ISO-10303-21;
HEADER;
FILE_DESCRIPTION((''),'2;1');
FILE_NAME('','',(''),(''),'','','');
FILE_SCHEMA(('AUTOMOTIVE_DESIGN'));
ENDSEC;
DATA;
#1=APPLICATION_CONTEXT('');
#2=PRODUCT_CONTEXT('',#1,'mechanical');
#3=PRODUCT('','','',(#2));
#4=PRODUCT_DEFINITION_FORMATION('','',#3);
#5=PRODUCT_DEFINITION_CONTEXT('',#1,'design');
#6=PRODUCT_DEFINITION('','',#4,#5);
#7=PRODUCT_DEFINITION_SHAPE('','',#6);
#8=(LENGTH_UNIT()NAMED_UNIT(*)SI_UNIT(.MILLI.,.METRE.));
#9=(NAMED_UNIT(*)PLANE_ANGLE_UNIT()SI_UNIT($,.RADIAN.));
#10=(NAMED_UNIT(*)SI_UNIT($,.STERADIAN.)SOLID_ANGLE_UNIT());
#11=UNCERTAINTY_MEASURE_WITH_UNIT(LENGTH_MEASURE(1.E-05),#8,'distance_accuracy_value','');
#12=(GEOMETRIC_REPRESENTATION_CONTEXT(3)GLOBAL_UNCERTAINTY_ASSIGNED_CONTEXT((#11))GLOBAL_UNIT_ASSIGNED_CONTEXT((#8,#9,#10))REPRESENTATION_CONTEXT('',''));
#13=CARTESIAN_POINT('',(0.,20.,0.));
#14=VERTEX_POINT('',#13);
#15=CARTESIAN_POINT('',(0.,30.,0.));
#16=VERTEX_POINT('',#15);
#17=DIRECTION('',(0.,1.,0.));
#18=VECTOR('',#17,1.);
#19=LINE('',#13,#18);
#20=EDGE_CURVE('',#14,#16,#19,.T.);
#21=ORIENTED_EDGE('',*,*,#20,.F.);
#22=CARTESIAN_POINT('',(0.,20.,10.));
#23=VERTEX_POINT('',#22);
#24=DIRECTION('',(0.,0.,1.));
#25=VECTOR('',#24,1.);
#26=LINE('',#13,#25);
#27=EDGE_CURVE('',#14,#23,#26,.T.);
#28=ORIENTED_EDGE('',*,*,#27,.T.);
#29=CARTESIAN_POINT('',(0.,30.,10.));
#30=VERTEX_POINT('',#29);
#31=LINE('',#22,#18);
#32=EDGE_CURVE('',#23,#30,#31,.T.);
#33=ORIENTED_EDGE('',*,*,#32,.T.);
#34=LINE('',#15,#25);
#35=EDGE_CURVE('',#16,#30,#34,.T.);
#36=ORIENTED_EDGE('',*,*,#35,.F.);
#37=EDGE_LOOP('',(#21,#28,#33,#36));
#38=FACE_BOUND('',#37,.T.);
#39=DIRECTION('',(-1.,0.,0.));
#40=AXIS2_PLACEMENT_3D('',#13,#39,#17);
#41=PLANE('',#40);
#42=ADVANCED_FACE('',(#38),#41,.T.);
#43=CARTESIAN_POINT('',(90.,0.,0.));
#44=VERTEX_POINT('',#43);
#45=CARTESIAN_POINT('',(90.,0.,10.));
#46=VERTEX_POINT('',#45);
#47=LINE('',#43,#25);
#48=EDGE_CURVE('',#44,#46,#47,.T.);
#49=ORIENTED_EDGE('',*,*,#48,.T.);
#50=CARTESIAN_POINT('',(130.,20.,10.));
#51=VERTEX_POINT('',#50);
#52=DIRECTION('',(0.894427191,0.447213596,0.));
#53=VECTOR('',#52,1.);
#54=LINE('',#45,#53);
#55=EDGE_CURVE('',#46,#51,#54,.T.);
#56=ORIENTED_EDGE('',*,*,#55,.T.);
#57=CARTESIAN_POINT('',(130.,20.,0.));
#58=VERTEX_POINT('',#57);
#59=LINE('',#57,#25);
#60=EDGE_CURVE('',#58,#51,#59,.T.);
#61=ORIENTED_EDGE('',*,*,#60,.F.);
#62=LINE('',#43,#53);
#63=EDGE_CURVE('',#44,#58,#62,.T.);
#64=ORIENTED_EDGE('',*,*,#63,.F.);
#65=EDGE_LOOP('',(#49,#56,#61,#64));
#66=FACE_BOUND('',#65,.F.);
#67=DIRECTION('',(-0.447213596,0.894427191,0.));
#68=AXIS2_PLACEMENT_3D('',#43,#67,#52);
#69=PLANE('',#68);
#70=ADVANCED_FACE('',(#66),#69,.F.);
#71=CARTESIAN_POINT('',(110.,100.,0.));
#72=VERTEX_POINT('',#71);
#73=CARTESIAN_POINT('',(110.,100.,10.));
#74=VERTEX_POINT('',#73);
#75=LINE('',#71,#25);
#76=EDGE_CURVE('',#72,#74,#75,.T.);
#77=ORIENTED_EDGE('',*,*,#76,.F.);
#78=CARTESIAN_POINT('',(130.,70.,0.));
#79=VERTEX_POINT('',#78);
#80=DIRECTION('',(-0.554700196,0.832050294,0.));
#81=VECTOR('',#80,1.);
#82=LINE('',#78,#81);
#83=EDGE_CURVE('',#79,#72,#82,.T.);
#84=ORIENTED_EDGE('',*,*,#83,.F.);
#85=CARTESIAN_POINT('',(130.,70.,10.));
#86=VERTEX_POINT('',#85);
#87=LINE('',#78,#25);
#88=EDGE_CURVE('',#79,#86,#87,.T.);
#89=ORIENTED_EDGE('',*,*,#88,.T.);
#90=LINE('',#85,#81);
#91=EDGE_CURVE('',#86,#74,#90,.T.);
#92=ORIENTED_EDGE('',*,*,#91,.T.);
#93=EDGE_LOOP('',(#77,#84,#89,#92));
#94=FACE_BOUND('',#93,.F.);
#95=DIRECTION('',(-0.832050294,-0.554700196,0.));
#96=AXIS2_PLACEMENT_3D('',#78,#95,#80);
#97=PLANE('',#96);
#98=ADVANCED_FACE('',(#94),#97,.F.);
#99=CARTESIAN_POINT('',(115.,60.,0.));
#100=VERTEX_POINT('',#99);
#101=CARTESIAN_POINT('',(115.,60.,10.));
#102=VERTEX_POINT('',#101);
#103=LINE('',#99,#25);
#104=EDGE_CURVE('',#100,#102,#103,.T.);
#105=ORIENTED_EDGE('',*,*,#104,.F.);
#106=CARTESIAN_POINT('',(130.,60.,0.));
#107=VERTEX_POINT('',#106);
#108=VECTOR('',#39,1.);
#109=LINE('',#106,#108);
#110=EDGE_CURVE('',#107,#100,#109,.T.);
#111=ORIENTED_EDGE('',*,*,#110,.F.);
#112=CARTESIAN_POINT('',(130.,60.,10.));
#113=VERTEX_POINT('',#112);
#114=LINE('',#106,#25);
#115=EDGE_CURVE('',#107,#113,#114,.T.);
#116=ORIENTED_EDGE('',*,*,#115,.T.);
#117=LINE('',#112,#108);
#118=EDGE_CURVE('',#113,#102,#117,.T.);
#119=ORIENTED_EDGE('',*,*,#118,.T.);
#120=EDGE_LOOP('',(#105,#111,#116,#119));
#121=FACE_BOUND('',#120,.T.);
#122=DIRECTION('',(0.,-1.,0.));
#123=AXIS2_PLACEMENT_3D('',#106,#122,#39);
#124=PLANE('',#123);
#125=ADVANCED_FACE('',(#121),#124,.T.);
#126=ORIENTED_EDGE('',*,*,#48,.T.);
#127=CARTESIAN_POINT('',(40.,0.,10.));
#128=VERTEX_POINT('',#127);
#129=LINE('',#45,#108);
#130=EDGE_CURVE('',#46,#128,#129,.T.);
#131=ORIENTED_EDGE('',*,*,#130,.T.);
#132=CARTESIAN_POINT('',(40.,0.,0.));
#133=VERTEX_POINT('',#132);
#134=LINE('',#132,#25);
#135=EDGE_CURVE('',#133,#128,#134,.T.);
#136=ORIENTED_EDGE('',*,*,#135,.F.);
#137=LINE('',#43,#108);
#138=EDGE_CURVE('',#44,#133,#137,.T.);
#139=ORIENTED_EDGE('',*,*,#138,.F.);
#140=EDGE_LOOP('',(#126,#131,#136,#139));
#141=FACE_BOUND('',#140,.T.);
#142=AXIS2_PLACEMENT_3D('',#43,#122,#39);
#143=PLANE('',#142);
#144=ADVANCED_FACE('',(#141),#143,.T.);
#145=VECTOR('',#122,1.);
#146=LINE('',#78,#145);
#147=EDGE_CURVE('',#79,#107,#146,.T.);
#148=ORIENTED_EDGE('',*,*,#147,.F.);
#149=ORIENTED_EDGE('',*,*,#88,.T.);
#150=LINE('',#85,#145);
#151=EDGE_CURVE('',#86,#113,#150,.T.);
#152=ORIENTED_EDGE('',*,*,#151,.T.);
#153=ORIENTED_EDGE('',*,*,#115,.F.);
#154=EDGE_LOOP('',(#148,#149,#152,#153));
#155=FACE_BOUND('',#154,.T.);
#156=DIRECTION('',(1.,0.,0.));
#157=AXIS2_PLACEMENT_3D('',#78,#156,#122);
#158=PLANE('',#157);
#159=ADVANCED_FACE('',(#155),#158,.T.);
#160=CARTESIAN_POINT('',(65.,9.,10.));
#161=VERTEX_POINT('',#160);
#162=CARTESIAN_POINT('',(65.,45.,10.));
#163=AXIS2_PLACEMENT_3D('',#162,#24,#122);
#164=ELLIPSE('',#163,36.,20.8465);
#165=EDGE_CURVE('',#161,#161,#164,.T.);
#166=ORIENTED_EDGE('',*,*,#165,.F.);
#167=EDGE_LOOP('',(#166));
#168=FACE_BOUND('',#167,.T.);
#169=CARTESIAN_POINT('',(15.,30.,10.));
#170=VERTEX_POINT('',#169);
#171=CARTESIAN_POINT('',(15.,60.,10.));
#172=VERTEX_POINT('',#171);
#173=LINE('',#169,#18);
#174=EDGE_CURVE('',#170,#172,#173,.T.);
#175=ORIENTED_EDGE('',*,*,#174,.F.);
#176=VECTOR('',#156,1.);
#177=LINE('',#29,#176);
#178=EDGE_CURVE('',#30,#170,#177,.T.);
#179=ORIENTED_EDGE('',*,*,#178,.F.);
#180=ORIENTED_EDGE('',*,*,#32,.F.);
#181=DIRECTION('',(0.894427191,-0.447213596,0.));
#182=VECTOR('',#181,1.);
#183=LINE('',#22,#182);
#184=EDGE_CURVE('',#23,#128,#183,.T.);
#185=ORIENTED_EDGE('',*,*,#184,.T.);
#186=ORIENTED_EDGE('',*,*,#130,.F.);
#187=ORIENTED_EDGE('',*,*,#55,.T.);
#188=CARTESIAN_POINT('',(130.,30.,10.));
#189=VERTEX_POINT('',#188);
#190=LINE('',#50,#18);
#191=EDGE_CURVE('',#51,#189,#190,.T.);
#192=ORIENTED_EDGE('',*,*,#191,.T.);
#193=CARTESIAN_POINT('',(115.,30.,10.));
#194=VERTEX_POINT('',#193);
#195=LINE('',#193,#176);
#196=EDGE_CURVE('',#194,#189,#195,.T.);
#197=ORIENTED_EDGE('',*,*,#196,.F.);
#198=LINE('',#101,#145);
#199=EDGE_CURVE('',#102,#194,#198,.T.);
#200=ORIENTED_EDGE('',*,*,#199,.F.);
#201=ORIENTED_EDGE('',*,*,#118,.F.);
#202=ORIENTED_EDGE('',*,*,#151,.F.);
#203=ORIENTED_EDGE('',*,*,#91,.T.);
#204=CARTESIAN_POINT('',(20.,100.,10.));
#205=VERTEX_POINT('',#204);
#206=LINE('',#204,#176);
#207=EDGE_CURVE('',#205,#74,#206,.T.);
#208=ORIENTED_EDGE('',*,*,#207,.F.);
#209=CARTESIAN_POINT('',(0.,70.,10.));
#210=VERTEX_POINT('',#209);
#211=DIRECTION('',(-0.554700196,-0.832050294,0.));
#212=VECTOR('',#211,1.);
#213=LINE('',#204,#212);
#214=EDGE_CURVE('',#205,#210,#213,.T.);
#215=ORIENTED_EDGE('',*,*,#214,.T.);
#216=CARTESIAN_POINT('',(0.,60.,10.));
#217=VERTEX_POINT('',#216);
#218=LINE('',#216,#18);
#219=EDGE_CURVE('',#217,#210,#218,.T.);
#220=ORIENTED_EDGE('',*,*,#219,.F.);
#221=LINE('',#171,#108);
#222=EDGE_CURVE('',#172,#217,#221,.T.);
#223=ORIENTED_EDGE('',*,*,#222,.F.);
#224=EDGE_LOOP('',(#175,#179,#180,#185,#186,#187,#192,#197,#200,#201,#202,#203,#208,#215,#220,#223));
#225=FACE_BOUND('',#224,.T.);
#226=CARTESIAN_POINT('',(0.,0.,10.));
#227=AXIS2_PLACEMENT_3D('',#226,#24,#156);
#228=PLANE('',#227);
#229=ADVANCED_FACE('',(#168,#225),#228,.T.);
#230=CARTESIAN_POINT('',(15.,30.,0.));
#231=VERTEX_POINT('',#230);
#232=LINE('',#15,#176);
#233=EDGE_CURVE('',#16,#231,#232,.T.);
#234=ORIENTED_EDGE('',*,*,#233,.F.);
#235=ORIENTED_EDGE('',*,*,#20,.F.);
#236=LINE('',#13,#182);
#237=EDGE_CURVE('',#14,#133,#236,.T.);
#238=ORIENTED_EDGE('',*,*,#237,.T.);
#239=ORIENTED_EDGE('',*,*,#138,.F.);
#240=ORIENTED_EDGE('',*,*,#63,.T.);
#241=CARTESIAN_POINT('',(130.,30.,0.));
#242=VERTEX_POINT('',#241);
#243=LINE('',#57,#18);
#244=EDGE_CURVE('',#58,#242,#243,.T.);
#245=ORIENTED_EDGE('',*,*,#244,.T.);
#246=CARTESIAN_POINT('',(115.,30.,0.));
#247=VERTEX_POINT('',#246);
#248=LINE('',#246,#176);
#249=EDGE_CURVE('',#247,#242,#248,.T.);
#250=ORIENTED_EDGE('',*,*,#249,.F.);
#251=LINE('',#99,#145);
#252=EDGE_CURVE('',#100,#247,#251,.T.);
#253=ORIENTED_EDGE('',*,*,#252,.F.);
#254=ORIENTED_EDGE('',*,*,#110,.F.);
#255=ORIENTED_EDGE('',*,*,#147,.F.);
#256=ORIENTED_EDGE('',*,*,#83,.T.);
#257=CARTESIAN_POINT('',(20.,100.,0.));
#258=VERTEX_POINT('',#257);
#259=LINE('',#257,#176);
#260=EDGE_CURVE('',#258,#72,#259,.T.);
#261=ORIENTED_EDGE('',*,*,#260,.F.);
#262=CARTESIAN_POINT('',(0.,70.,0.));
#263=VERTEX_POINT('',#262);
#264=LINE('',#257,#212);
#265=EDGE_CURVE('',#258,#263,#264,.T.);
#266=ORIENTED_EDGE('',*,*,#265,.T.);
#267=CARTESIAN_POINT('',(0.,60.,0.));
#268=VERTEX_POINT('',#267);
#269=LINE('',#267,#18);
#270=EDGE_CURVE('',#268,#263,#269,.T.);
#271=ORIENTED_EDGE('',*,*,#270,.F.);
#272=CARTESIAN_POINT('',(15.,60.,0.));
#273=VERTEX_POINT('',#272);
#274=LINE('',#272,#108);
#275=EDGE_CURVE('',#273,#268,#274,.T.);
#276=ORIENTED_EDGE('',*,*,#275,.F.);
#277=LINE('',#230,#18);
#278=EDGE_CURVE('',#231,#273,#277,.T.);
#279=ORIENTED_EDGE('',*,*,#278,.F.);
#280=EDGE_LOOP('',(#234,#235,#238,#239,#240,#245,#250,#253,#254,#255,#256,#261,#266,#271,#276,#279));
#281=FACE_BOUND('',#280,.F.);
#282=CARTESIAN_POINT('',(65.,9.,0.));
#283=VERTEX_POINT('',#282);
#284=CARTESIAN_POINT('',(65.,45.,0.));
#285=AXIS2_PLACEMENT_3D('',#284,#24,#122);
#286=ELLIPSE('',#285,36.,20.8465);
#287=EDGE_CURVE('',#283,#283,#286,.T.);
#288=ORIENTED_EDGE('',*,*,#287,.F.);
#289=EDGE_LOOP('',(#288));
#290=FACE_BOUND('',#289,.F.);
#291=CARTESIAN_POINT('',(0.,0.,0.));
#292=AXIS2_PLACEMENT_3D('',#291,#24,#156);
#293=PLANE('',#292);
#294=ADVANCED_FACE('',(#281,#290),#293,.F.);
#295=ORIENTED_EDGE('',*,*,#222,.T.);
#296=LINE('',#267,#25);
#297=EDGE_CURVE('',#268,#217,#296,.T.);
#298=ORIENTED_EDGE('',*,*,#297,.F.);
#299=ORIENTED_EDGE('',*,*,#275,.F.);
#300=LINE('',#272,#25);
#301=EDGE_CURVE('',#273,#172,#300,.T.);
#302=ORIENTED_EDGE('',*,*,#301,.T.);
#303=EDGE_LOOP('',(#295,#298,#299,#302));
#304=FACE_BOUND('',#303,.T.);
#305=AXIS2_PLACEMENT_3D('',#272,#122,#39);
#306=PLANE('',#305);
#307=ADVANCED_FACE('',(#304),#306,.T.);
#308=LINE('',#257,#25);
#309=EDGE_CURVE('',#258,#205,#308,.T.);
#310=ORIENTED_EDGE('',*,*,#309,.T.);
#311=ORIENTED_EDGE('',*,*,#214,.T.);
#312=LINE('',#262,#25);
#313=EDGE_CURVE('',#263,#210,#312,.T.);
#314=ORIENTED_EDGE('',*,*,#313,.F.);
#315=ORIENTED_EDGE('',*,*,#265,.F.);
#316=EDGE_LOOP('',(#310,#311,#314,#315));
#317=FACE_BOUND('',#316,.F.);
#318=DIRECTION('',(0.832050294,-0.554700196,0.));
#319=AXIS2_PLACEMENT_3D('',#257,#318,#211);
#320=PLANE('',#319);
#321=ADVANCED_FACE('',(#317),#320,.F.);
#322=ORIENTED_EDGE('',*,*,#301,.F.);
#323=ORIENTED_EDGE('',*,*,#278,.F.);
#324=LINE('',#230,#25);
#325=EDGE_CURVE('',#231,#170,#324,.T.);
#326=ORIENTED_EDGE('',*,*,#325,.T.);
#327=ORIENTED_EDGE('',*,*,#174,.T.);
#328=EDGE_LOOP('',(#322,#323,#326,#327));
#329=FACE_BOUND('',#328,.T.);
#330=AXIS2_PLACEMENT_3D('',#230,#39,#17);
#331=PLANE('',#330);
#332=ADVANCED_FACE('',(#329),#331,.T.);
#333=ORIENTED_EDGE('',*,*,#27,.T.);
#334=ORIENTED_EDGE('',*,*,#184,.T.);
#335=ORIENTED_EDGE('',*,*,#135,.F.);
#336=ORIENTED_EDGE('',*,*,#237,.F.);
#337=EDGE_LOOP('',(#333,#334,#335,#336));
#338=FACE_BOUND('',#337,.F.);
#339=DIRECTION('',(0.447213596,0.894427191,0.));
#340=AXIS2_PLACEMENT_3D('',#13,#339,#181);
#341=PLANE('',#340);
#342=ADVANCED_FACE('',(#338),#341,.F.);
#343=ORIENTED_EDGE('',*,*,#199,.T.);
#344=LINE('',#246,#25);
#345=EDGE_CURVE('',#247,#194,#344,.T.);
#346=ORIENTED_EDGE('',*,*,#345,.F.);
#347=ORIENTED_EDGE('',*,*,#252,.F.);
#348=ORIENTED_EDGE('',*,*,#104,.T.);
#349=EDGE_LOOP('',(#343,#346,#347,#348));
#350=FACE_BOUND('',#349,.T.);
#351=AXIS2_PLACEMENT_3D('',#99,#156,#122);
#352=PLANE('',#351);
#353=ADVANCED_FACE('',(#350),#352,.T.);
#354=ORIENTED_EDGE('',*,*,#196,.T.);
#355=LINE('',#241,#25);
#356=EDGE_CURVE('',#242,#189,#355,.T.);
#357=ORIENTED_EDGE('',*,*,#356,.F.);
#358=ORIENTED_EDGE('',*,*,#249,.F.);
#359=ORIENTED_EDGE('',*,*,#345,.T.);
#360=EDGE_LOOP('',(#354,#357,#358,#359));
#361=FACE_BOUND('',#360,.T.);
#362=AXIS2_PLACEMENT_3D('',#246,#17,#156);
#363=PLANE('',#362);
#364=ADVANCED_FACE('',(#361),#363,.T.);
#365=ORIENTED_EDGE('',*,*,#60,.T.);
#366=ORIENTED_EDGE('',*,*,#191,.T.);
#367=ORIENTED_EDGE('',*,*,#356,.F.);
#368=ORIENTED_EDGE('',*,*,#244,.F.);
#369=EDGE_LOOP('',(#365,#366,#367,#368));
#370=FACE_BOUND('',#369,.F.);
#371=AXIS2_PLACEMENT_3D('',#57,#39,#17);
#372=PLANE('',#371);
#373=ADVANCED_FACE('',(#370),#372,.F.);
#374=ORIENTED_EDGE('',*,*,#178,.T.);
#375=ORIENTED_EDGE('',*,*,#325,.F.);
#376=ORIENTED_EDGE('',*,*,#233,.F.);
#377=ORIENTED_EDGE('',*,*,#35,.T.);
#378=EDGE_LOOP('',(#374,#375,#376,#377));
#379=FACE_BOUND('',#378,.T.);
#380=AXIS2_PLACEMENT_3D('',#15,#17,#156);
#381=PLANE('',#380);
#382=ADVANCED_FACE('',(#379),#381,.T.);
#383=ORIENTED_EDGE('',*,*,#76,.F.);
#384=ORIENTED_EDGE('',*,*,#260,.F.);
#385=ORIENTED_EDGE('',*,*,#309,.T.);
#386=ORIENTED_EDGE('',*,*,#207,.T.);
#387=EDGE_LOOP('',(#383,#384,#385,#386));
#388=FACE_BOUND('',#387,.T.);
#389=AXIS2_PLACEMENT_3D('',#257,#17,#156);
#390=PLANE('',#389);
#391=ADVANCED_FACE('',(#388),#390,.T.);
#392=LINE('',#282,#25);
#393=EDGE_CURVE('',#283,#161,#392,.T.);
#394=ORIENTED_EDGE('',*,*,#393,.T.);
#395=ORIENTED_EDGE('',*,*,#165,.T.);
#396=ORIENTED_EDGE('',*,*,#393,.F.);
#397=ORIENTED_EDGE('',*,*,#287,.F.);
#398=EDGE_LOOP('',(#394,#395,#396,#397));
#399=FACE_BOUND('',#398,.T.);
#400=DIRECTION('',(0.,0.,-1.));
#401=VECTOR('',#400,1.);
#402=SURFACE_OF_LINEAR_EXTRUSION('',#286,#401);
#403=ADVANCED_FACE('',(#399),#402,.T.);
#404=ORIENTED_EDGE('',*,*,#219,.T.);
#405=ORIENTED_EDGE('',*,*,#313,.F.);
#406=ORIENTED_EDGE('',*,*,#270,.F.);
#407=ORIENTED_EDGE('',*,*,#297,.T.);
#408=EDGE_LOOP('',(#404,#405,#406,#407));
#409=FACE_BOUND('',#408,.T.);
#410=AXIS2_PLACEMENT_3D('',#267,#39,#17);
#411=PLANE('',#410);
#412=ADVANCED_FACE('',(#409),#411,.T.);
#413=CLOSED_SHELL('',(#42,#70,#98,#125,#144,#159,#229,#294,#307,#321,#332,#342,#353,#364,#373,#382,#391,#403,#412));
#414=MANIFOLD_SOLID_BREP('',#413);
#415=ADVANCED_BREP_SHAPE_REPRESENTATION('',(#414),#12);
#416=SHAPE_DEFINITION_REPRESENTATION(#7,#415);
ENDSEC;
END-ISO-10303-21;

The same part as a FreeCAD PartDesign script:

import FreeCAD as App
import Part
import Sketcher

V = App.Vector

doc = App.newDocument("Part")
body = doc.addObject("PartDesign::Body", "Body")

# Sketch on XY plane
sketch1 = body.newObject("Sketcher::SketchObject", "Sketch")
sketch1.AttachmentSupport = (doc.getObject("XY_Plane"), [""])
sketch1.MapMode = "FlatFace"
sketch1.addGeometry(Part.LineSegment(V(0, 30, 0), V(0, 20, 0)), False)
sketch1.addGeometry(Part.LineSegment(V(0, 20, 0), V(40, 0, 0)), False)
sketch1.addGeometry(Part.LineSegment(V(40, 0, 0), V(90, 0, 0)), False)
sketch1.addGeometry(Part.LineSegment(V(90, 0, 0), V(130, 20, 0)), False)
sketch1.addGeometry(Part.LineSegment(V(130, 20, 0), V(130, 30, 0)), False)
sketch1.addGeometry(Part.LineSegment(V(130, 30, 0), V(115, 30, 0)), False)
sketch1.addGeometry(Part.LineSegment(V(115, 30, 0), V(115, 60, 0)), False)
sketch1.addGeometry(Part.LineSegment(V(115, 60, 0), V(130, 60, 0)), False)
sketch1.addGeometry(Part.LineSegment(V(130, 60, 0), V(130, 70, 0)), False)
sketch1.addGeometry(Part.LineSegment(V(130, 70, 0), V(110, 100, 0)), False)
sketch1.addGeometry(Part.LineSegment(V(110, 100, 0), V(20, 100, 0)), False)
sketch1.addGeometry(Part.LineSegment(V(20, 100, 0), V(0, 70, 0)), False)
sketch1.addGeometry(Part.LineSegment(V(0, 70, 0), V(0, 60, 0)), False)
sketch1.addGeometry(Part.LineSegment(V(0, 60, 0), V(15, 60, 0)), False)
sketch1.addGeometry(Part.LineSegment(V(15, 60, 0), V(15, 30, 0)), False)
sketch1.addGeometry(Part.LineSegment(V(15, 30, 0), V(0, 30, 0)), False)
sketch1.addGeometry(Part.Ellipse(V(65, 9, 0), V(85.8465, 45, 0), V(65, 45, 0)), False)
sketch1.addConstraint(Sketcher.Constraint("Block", 16))
sketch1.addConstraint(Sketcher.Constraint("Coincident", 0, 2, 1, 1))
sketch1.addConstraint(Sketcher.Constraint("Coincident", 1, 2, 2, 1))
sketch1.addConstraint(Sketcher.Constraint("Coincident", 2, 2, 3, 1))
sketch1.addConstraint(Sketcher.Constraint("Coincident", 3, 2, 4, 1))
sketch1.addConstraint(Sketcher.Constraint("Coincident", 4, 2, 5, 1))
sketch1.addConstraint(Sketcher.Constraint("Coincident", 5, 2, 6, 1))
sketch1.addConstraint(Sketcher.Constraint("Coincident", 6, 2, 7, 1))
sketch1.addConstraint(Sketcher.Constraint("Coincident", 7, 2, 8, 1))
sketch1.addConstraint(Sketcher.Constraint("Coincident", 8, 2, 9, 1))
sketch1.addConstraint(Sketcher.Constraint("Coincident", 9, 2, 10, 1))
sketch1.addConstraint(Sketcher.Constraint("Coincident", 10, 2, 11, 1))
sketch1.addConstraint(Sketcher.Constraint("Coincident", 11, 2, 12, 1))
sketch1.addConstraint(Sketcher.Constraint("Coincident", 12, 2, 13, 1))
sketch1.addConstraint(Sketcher.Constraint("Coincident", 13, 2, 14, 1))
sketch1.addConstraint(Sketcher.Constraint("Coincident", 14, 2, 15, 1))
sketch1.addConstraint(Sketcher.Constraint("Coincident", 15, 2, 0, 1))
sketch1.addConstraint(Sketcher.Constraint("Vertical", 0))
sketch1.addConstraint(Sketcher.Constraint("Horizontal", 2))
sketch1.addConstraint(Sketcher.Constraint("Vertical", 4))
sketch1.addConstraint(Sketcher.Constraint("Horizontal", 5))
sketch1.addConstraint(Sketcher.Constraint("Vertical", 6))
sketch1.addConstraint(Sketcher.Constraint("Horizontal", 7))
sketch1.addConstraint(Sketcher.Constraint("Vertical", 8))
sketch1.addConstraint(Sketcher.Constraint("Horizontal", 10))
sketch1.addConstraint(Sketcher.Constraint("Vertical", 12))
sketch1.addConstraint(Sketcher.Constraint("Horizontal", 13))
sketch1.addConstraint(Sketcher.Constraint("Vertical", 14))
sketch1.addConstraint(Sketcher.Constraint("Horizontal", 15))
sketch1.addConstraint(Sketcher.Constraint("PointOnObject", 0, 2, -2))
sketch1.addConstraint(Sketcher.Constraint("PointOnObject", 1, 2, -1))
sketch1.addConstraint(Sketcher.Constraint("PointOnObject", 11, 2, -2))
sketch1.addConstraint(Sketcher.Constraint("Horizontal", 0, 2, 3, 2))
sketch1.addConstraint(Sketcher.Constraint("Horizontal", 8, 2, 11, 2))
sketch1.addConstraint(Sketcher.Constraint("Horizontal", 7, 2, 12, 2))
sketch1.addConstraint(Sketcher.Constraint("Horizontal", 5, 2, 14, 2))
sketch1.addConstraint(Sketcher.Constraint("Vertical", 4, 2, 7, 2))
sketch1.addConstraint(Sketcher.Constraint("Equal", 7, 13))
sketch1.addConstraint(Sketcher.Constraint("Equal", 4, 8))
sketch1.addConstraint(Sketcher.Constraint("Equal", 1, 3))
sketch1.addConstraint(Sketcher.Constraint("Equal", 9, 11))
sketch1.addConstraint(Sketcher.Constraint("DistanceX", 2, 1, 2, 2, 50.0))
sketch1.addConstraint(Sketcher.Constraint("DistanceX", 5, 2, 5, 1, 15.0))
sketch1.addConstraint(Sketcher.Constraint("DistanceX", 10, 2, 10, 1, 90.0))
sketch1.addConstraint(Sketcher.Constraint("DistanceY", 0, 2, 0, 1, 10.0))
sketch1.addConstraint(Sketcher.Constraint("DistanceY", 6, 1, 6, 2, 30.0))
sketch1.addConstraint(Sketcher.Constraint("DistanceY", -1, 1, 0, 2, 20.0))
sketch1.addConstraint(Sketcher.Constraint("DistanceX", -1, 1, 1, 2, 40.0))
sketch1.addConstraint(Sketcher.Constraint("DistanceY", -1, 1, 9, 2, 100.0))
pad1 = body.newObject("PartDesign::Pad", "Pad")
pad1.Profile = sketch1
pad1.Length = 10

doc.recompute()
